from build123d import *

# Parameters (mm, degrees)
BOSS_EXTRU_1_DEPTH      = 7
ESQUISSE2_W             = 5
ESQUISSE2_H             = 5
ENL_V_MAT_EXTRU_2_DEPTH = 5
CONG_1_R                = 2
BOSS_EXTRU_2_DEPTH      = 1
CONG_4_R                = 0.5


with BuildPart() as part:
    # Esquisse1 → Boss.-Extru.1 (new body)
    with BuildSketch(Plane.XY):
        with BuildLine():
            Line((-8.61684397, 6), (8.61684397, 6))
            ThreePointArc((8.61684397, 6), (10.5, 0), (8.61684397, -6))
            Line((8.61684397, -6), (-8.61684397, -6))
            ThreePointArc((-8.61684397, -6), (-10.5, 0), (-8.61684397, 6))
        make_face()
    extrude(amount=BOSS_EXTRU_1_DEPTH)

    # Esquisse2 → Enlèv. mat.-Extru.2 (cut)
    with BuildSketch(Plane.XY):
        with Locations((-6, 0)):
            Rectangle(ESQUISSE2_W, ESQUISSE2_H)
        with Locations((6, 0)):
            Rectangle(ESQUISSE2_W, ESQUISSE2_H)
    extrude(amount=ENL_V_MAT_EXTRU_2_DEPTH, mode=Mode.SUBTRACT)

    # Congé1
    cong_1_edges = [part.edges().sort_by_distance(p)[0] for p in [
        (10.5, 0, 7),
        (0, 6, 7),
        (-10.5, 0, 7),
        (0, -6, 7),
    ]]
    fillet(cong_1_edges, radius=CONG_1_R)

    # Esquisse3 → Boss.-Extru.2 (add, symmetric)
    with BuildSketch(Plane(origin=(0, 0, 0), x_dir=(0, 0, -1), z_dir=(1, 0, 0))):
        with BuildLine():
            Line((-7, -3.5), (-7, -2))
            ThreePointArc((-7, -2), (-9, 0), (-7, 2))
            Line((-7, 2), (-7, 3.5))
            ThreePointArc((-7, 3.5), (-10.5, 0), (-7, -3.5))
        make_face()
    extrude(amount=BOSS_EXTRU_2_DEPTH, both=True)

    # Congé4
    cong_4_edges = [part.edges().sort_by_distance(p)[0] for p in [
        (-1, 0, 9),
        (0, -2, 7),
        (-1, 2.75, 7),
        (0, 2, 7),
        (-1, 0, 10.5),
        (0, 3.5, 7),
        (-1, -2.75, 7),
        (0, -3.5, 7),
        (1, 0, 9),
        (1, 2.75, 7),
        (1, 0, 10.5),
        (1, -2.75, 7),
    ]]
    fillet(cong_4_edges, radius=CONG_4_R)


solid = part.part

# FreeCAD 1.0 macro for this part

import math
import FreeCAD as App
import Part
import Sketcher
from FreeCAD import Vector
Q = App.Units.Quantity


def edges_at(feature, points):
    """Names of the edges that pass closest to the given points."""
    edges = feature.Shape.Edges
    near = lambda p: min(range(len(edges)), key=lambda i: edges[i].distToShape(Part.Vertex(*p))[0])
    return sorted({f"Edge{near(p) + 1}" for p in points})


def add_polygon(sketch, points):
    """Adds a closed chain of lines whose ends are joined by coincident constraints."""
    first, n = sketch.GeometryCount, len(points)
    for a, b in zip(points, points[1:] + points[:1]):
        sketch.addGeometry(Part.LineSegment(App.Vector(*a, 0), App.Vector(*b, 0)), False)
    for i in range(n):
        sketch.addConstraint(Sketcher.Constraint("Coincident", first + i, 2, first + (i + 1) % n, 1))

doc = App.newDocument("Part")
body = doc.addObject("PartDesign::Body", "Body")

# Sketch on XY plane
sketch1 = doc.addObject("Sketcher::SketchObject", "Sketch")
body.addObject(sketch1)
sketch1.AttachmentSupport = (doc.XY_Plane, [""])
sketch1.MapMode = "FlatFace"
sketch1.addGeometry([
    Part.LineSegment(Vector(9, 6, 0), Vector(-9, 6, 0)),
    Part.ArcOfCircle(Part.Circle(Vector(0, 0, 0), Vector(0, 0, 1), 11), math.radians(145), math.radians(215)),
    Part.LineSegment(Vector(-9, -6, 0), Vector(9, -6, 0)),
    Part.ArcOfCircle(Part.Circle(Vector(0, 0, 0), Vector(0, 0, 1), 11), math.radians(-35), math.radians(35)),
], False)
sketch1.addConstraint([
    Sketcher.Constraint("Coincident", 0, 2, 1, 1),
    Sketcher.Constraint("Coincident", 1, 2, 2, 1),
    Sketcher.Constraint("Coincident", 2, 2, 3, 1),
    Sketcher.Constraint("Coincident", 3, 2, 0, 1),
    Sketcher.Constraint("Horizontal", 0),
    Sketcher.Constraint("Horizontal", 2),
    Sketcher.Constraint("Coincident", 1, 3, -1, 1),
    Sketcher.Constraint("Coincident", 3, 3, -1, 1),
    Sketcher.Constraint("Equal", 1, 3),
    Sketcher.Constraint("Vertical", 0, 2, 1, 2),
    Sketcher.Constraint("Radius", 1, Q("10.5 mm")),
    Sketcher.Constraint("DistanceY", -1, 1, 0, 2, Q("6 mm")),
])
pad1 = doc.addObject("PartDesign::Pad", "Pad")
body.addObject(pad1)
pad1.Profile = sketch1
pad1.Length = 7

# Sketch on XY plane
sketch2 = doc.addObject("Sketcher::SketchObject", "Sketch001")
body.addObject(sketch2)
sketch2.AttachmentSupport = (doc.XY_Plane, [""])
sketch2.MapMode = "FlatFace"
add_polygon(sketch2, [(-8, 2), (-8, -2), (-4, -2), (-4, 2)])  # lines 0-3
add_polygon(sketch2, [(4, 2), (4, -2), (8, -2), (8, 2)])  # lines 4-7
sketch2.addConstraint([
    Sketcher.Constraint("Vertical", 0),
    Sketcher.Constraint("Horizontal", 1),
    Sketcher.Constraint("Vertical", 2),
    Sketcher.Constraint("Horizontal", 3),
    Sketcher.Constraint("Vertical", 4),
    Sketcher.Constraint("Horizontal", 5),
    Sketcher.Constraint("Vertical", 6),
    Sketcher.Constraint("Horizontal", 7),
    Sketcher.Constraint("Symmetric", 2, 2, 4, 2, -1, 1),
    Sketcher.Constraint("Symmetric", 0, 2, 6, 2, -1, 1),
    Sketcher.Constraint("Horizontal", 1, 2, 4, 2),
    Sketcher.Constraint("Equal", 7, 0),
    Sketcher.Constraint("DistanceX", 1, 1, 1, 2, Q("5 mm")),
    Sketcher.Constraint("DistanceX", 1, 2, 4, 2, Q("7 mm")),
])
pocket1 = doc.addObject("PartDesign::Pocket", "Pocket")
body.addObject(pocket1)
pocket1.Profile = sketch2
pocket1.Length = 5
pocket1.Reversed = True
doc.recompute()

fillet = doc.addObject("PartDesign::Fillet", "Fillet")
body.addObject(fillet)
fillet.Base = (pocket1, edges_at(pocket1, [
    (10.5, 0, 7),
    (0, 6, 7),
    (-10.5, 0, 7),
    (0, -6, 7),
]))
fillet.Radius = 2

# Sketch on YZ plane
sketch3 = doc.addObject("Sketcher::SketchObject", "Sketch002")
body.addObject(sketch3)
sketch3.AttachmentSupport = (doc.YZ_Plane, [""])
sketch3.MapMode = "FlatFace"
sketch3.addGeometry([
    Part.LineSegment(Vector(-3.5, 7, 0), Vector(-2, 7, 0)),
    Part.ArcOfCircle(Part.Circle(Vector(0, 7, 0), Vector(0, 0, 1), 2), math.radians(0), math.radians(180)),
    Part.LineSegment(Vector(2, 7, 0), Vector(3.5, 7, 0)),
    Part.ArcOfCircle(Part.Circle(Vector(0, 7, 0), Vector(0, 0, 1), 3.5), math.radians(0), math.radians(180)),
], False)
sketch3.addConstraint([
    Sketcher.Constraint("Coincident", 0, 2, 1, 2),
    Sketcher.Constraint("Coincident", 1, 1, 2, 1),
    Sketcher.Constraint("Coincident", 2, 2, 3, 1),
    Sketcher.Constraint("Coincident", 3, 2, 0, 1),
    Sketcher.Constraint("Horizontal", 0),
    Sketcher.Constraint("Horizontal", 2),
    Sketcher.Constraint("Coincident", 3, 3, 1, 3),
    Sketcher.Constraint("Symmetric", 0, 2, 1, 1, -2),
    Sketcher.Constraint("Horizontal", 3, 3, 0, 2),
    Sketcher.Constraint("Radius", 1, Q("2 mm")),
    Sketcher.Constraint("Radius", 3, Q("3.5 mm")),
    Sketcher.Constraint("DistanceY", -1, 1, 1, 3, Q("7 mm")),
])
pad2 = doc.addObject("PartDesign::Pad", "Pad001")
body.addObject(pad2)
pad2.Profile = sketch3
pad2.Length = 2
pad2.Midplane = True
doc.recompute()

fillet2 = doc.addObject("PartDesign::Fillet", "Fillet001")
body.addObject(fillet2)
fillet2.Base = (pad2, edges_at(pad2, [
    (-1, 0, 9),
    (0, -2, 7),
    (-1, 2.75, 7),
    (0, 2, 7),
    (-1, 0, 10.5),
    (0, 3.5, 7),
    (-1, -2.75, 7),
    (0, -3.5, 7),
    (1, 0, 9),
    (1, 2.75, 7),
    (1, 0, 10.5),
    (1, -2.75, 7),
]))
fillet2.Radius = 0.5

doc.recompute()
